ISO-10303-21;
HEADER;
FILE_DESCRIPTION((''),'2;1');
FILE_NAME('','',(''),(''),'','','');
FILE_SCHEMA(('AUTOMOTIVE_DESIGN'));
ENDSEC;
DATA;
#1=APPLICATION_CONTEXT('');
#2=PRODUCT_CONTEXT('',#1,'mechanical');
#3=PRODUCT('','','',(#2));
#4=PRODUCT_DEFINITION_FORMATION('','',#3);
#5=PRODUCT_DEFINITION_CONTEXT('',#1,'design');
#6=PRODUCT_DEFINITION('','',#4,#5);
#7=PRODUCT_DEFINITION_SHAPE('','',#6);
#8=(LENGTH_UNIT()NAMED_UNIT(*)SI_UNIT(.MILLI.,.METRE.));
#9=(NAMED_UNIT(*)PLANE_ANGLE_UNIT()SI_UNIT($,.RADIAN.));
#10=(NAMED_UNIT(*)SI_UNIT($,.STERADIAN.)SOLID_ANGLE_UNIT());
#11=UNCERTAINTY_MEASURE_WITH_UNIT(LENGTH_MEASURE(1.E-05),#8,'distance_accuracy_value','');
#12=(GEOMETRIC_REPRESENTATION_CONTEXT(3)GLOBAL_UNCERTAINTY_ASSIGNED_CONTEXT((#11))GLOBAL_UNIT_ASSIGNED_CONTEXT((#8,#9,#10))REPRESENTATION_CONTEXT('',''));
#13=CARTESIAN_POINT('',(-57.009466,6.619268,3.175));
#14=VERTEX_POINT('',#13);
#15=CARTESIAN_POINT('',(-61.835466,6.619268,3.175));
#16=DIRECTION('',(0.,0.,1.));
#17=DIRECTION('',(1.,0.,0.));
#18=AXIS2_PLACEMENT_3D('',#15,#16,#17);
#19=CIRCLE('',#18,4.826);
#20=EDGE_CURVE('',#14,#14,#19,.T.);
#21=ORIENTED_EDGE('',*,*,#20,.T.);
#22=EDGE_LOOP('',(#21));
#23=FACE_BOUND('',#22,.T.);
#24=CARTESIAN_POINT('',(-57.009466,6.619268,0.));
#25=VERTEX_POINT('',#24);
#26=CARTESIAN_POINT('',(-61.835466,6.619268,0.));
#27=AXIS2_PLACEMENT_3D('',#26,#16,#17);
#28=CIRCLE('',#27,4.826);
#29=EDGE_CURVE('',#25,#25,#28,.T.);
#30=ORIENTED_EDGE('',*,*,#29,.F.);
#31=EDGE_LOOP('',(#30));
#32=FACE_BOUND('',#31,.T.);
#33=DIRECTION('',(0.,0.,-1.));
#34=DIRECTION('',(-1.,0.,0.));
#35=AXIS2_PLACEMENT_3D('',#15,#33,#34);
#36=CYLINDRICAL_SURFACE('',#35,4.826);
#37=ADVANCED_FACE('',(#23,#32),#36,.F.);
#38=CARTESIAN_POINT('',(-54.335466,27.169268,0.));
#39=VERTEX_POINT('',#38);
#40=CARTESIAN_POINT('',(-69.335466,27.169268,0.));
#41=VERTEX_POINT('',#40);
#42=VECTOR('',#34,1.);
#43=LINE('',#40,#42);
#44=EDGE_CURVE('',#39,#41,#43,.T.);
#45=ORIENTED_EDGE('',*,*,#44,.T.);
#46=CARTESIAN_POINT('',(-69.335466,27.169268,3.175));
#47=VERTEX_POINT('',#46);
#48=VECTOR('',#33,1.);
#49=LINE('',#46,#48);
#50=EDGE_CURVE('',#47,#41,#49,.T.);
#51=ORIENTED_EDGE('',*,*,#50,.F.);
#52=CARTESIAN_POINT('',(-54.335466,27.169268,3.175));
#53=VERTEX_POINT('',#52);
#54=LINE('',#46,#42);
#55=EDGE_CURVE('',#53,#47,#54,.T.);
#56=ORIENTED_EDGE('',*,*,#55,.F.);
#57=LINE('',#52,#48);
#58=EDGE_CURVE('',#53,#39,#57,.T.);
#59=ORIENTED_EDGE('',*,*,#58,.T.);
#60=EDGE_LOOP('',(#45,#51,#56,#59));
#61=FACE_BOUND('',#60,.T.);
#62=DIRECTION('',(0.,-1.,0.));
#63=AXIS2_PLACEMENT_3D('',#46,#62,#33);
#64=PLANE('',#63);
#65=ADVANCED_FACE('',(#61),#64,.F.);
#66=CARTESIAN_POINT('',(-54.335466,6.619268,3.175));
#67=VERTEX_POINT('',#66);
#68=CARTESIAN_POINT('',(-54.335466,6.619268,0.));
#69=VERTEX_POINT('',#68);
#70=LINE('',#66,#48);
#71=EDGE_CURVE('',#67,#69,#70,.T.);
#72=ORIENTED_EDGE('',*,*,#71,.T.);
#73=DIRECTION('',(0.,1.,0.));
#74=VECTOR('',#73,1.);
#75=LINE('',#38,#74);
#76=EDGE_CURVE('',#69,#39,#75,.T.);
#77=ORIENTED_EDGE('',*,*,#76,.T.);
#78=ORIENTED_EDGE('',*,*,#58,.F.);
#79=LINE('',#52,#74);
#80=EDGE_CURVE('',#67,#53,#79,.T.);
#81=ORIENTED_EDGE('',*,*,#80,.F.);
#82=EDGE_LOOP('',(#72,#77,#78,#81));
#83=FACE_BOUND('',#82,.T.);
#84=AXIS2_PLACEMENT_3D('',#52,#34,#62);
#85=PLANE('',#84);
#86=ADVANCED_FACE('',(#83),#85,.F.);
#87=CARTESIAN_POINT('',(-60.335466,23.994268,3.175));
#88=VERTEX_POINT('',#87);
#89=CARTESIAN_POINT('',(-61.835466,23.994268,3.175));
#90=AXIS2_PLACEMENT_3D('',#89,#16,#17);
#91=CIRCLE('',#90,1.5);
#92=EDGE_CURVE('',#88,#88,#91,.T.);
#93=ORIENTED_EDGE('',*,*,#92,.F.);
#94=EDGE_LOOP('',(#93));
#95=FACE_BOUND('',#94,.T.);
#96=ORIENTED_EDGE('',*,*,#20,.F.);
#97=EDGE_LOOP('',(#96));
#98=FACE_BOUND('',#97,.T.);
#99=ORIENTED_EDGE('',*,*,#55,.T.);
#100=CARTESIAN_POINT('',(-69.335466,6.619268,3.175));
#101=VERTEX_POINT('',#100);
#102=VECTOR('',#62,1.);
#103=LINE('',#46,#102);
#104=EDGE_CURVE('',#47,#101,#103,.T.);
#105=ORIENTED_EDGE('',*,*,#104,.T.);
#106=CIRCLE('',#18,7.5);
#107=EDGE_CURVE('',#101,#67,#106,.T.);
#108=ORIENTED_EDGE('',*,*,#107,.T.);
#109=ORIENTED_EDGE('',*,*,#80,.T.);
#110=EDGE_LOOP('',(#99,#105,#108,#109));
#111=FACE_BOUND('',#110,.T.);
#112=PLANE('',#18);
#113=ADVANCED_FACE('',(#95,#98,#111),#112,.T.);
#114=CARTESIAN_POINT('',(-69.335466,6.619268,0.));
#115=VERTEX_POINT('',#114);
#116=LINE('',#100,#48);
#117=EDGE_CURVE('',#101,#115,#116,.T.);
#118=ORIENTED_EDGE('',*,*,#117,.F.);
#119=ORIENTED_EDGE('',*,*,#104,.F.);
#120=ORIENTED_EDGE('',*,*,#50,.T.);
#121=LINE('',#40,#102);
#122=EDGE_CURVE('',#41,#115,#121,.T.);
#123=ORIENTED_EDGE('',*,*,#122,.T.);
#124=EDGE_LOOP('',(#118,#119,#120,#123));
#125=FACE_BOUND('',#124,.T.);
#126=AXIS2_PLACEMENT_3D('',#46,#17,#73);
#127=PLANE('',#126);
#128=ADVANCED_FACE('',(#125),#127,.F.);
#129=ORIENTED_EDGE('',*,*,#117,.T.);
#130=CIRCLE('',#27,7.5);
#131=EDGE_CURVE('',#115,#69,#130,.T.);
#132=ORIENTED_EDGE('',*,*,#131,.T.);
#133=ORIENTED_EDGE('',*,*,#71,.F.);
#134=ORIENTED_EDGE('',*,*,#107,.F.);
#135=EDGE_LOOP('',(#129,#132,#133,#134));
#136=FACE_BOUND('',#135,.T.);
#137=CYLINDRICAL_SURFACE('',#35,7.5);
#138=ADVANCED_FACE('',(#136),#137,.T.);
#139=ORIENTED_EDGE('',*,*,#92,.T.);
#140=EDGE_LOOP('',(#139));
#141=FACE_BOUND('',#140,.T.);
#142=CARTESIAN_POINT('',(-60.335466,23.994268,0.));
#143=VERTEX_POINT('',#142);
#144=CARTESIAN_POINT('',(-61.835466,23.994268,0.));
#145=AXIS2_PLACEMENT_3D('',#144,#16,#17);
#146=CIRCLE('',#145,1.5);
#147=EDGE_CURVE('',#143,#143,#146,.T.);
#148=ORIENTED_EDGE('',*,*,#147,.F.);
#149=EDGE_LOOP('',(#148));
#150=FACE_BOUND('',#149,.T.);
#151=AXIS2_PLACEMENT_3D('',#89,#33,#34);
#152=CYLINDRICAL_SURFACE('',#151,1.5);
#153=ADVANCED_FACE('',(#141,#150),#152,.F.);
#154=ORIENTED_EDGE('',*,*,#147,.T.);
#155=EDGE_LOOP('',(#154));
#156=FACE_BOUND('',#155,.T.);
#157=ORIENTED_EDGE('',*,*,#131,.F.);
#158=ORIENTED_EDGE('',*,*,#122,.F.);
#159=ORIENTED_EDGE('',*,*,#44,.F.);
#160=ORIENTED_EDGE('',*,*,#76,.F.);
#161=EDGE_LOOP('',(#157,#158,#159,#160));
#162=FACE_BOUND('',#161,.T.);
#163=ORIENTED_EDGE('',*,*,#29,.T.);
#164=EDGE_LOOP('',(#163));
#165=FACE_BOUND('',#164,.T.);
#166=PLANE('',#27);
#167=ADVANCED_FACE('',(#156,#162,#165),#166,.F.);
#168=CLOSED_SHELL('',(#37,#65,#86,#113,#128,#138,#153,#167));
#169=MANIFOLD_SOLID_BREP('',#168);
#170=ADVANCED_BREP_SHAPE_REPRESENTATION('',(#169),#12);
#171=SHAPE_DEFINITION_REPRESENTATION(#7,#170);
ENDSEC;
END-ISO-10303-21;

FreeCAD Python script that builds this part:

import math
import FreeCAD as App
import Part
import Sketcher

doc = App.newDocument("Part")
body = doc.addObject("PartDesign::Body", "Body")

sketch1 = body.newObject("Sketcher::SketchObject", "Sketch")
sketch1.AttachmentSupport = (doc.getObject("XY_Plane"), [""])
sketch1.MapMode = "FlatFace"
sketch1.addGeometry(Part.LineSegment(App.Vector(-54.3, 27.2, 0), App.Vector(-69.3, 27.2, 0)), False)
sketch1.addGeometry(Part.LineSegment(App.Vector(-69.3, 27.2, 0), App.Vector(-69.3, 6.6, 0)), False)
sketch1.addGeometry(Part.ArcOfCircle(Part.Circle(App.Vector(-61.8, 6.6, 0), App.Vector(0, 0, 1), 7.5), math.radians(180), math.radians(360)), False)
sketch1.addGeometry(Part.LineSegment(App.Vector(-54.3, 6.6, 0), App.Vector(-54.3, 27.2, 0)), False)
sketch1.addGeometry(Part.Circle(App.Vector(-61.8, 6.6, 0), App.Vector(0, 0, 1), 4.8), False)
sketch1.addGeometry(Part.Circle(App.Vector(-61.8, 24, 0), App.Vector(0, 0, 1), 1.5), False)
sketch1.addConstraint(Sketcher.Constraint("Coincident", 0, 2, 1, 1))
sketch1.addConstraint(Sketcher.Constraint("Tangent", 1, 2, 2, 1))
sketch1.addConstraint(Sketcher.Constraint("Tangent", 2, 2, 3, 1))
sketch1.addConstraint(Sketcher.Constraint("Coincident", 3, 2, 0, 1))
sketch1.addConstraint(Sketcher.Constraint("Horizontal", 0))
sketch1.addConstraint(Sketcher.Constraint("Vertical", 1))
sketch1.addConstraint(Sketcher.Constraint("Vertical", 3))
sketch1.addConstraint(Sketcher.Constraint("Coincident", 4, 3, 2, 3))
sketch1.addConstraint(Sketcher.Constraint("Vertical", 4, 3, 5, 3))
sketch1.addConstraint(Sketcher.Constraint("Diameter", 5, 3.0))
sketch1.addConstraint(Sketcher.Constraint("Radius", 2, 7.5))
sketch1.addConstraint(Sketcher.Constraint("Diameter", 4, 9.652))
sketch1.addConstraint(Sketcher.Constraint("DistanceY", 1, 2, 1, 1, 20.55))
sketch1.addConstraint(Sketcher.Constraint("DistanceY", 2, 3, 5, 3, 17.375))
sketch1.addConstraint(Sketcher.Constraint("DistanceX", 2, 3, -1, 1, 61.835466))
sketch1.addConstraint(Sketcher.Constraint("DistanceY", -1, 1, 2, 3, 6.619268))
pad1 = body.newObject("PartDesign::Pad", "Pad")
pad1.Profile = sketch1
pad1.Length = 3.175

doc.recompute()
